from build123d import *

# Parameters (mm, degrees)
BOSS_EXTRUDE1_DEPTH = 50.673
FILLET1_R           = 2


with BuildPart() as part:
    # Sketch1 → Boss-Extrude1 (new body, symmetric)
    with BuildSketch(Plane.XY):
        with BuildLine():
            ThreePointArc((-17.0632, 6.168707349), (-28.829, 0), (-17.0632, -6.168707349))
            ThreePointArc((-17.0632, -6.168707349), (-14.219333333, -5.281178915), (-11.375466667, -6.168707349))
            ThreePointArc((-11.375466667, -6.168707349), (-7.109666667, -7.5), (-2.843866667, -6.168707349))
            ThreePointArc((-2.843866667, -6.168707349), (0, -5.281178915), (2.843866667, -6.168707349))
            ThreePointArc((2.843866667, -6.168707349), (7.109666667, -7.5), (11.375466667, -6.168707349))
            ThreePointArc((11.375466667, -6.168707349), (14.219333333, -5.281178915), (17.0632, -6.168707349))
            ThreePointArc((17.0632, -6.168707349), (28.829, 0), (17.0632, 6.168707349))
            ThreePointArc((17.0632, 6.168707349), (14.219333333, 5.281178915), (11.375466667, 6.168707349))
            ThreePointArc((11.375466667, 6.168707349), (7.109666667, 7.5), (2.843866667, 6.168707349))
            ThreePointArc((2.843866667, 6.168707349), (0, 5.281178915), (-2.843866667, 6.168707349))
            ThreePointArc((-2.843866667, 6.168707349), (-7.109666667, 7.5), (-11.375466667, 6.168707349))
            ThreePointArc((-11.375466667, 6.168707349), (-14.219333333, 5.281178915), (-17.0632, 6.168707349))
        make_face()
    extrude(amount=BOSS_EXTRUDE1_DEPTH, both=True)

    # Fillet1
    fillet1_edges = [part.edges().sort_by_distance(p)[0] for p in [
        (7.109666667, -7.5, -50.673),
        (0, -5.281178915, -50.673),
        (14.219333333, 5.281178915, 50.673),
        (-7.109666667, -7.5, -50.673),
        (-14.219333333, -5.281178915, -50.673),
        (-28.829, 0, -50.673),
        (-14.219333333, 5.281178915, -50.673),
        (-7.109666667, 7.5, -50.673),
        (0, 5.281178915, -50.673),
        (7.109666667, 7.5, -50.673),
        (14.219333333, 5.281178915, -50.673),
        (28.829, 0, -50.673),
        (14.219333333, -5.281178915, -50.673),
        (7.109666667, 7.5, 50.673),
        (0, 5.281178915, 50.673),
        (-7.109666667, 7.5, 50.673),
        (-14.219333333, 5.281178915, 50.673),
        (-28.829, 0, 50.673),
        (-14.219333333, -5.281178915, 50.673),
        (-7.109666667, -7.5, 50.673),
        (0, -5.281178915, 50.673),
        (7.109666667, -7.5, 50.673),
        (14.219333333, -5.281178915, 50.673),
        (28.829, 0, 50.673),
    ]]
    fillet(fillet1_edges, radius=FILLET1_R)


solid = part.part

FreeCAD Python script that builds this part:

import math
import FreeCAD as App
import Part
import Sketcher
Q = App.Units.Quantity


def edges_at(feature, points):
    """Names of the edges that pass closest to the given points."""
    edges = feature.Shape.Edges
    near = lambda p: min(range(len(edges)), key=lambda i: edges[i].distToShape(Part.Vertex(*p))[0])
    return sorted({f"Edge{near(p) + 1}" for p in points})

doc = App.newDocument("Part")
body = doc.addObject("PartDesign::Body", "Body")

# Sketch on XY plane
sketch1 = body.newObject("Sketcher::SketchObject", "Sketch")
sketch1.AttachmentSupport = (doc.getObject("XY_Plane"), [""])
sketch1.MapMode = "FlatFace"
sketch1.addGeometry(Part.ArcOfCircle(Part.Circle(App.Vector(-21.3, 0, 0), App.Vector(0, 0, 1), 7.5), math.radians(55), math.radians(305)), False)
sketch1.addGeometry(Part.ArcOfCircle(Part.Circle(App.Vector(-14.2, -10.3, 0), App.Vector(0, 0, 1), 5), math.radians(55), math.radians(125)), False)
sketch1.addGeometry(Part.ArcOfCircle(Part.Circle(App.Vector(-7.1, 0, 0), App.Vector(0, 0, 1), 7.5), math.radians(-125), math.radians(-55)), False)
sketch1.addGeometry(Part.ArcOfCircle(Part.Circle(App.Vector(0, -10.3, 0), App.Vector(0, 0, 1), 5), math.radians(55), math.radians(125)), False)
sketch1.addGeometry(Part.ArcOfCircle(Part.Circle(App.Vector(7.1, 0, 0), App.Vector(0, 0, 1), 7.5), math.radians(-125), math.radians(-55)), False)
sketch1.addGeometry(Part.ArcOfCircle(Part.Circle(App.Vector(14.2, -10.3, 0), App.Vector(0, 0, 1), 5), math.radians(55), math.radians(125)), False)
sketch1.addGeometry(Part.ArcOfCircle(Part.Circle(App.Vector(21.3, 0, 0), App.Vector(0, 0, 1), 7.5), math.radians(-125), math.radians(125)), False)
sketch1.addGeometry(Part.ArcOfCircle(Part.Circle(App.Vector(14.2, 10.3, 0), App.Vector(0, 0, 1), 5), math.radians(-125), math.radians(-55)), False)
sketch1.addGeometry(Part.ArcOfCircle(Part.Circle(App.Vector(7.1, 0, 0), App.Vector(0, 0, 1), 7.5), math.radians(55), math.radians(125)), False)
sketch1.addGeometry(Part.ArcOfCircle(Part.Circle(App.Vector(0, 10.3, 0), App.Vector(0, 0, 1), 5), math.radians(-125), math.radians(-55)), False)
sketch1.addGeometry(Part.ArcOfCircle(Part.Circle(App.Vector(-7.1, 0, 0), App.Vector(0, 0, 1), 7.5), math.radians(55), math.radians(125)), False)
sketch1.addGeometry(Part.ArcOfCircle(Part.Circle(App.Vector(-14.2, 10.3, 0), App.Vector(0, 0, 1), 5), math.radians(-125), math.radians(-55)), False)
sketch1.addConstraint(Sketcher.Constraint("Tangent", 0, 2, 1, 2))
sketch1.addConstraint(Sketcher.Constraint("Tangent", 1, 1, 2, 1))
sketch1.addConstraint(Sketcher.Constraint("Tangent", 2, 2, 3, 2))
sketch1.addConstraint(Sketcher.Constraint("Tangent", 3, 1, 4, 1))
sketch1.addConstraint(Sketcher.Constraint("Tangent", 4, 2, 5, 2))
sketch1.addConstraint(Sketcher.Constraint("Tangent", 5, 1, 6, 1))
sketch1.addConstraint(Sketcher.Constraint("Tangent", 6, 2, 7, 2))
sketch1.addConstraint(Sketcher.Constraint("Tangent", 7, 1, 8, 1))
sketch1.addConstraint(Sketcher.Constraint("Tangent", 8, 2, 9, 2))
sketch1.addConstraint(Sketcher.Constraint("Tangent", 9, 1, 10, 1))
sketch1.addConstraint(Sketcher.Constraint("Tangent", 10, 2, 11, 2))
sketch1.addConstraint(Sketcher.Constraint("Tangent", 11, 1, 0, 1))
sketch1.addConstraint(Sketcher.Constraint("Coincident", 8, 3, 4, 3))
sketch1.addConstraint(Sketcher.Constraint("Coincident", 10, 3, 2, 3))
sketch1.addConstraint(Sketcher.Constraint("Equal", 0, 2))
sketch1.addConstraint(Sketcher.Constraint("Equal", 1, 3))
sketch1.addConstraint(Sketcher.Constraint("Equal", 2, 4))
sketch1.addConstraint(Sketcher.Constraint("Equal", 3, 5))
sketch1.addConstraint(Sketcher.Constraint("Equal", 4, 6))
sketch1.addConstraint(Sketcher.Constraint("Equal", 5, 7))
sketch1.addConstraint(Sketcher.Constraint("Equal", 6, 8))
sketch1.addConstraint(Sketcher.Constraint("Equal", 7, 9))
sketch1.addConstraint(Sketcher.Constraint("Equal", 8, 10))
sketch1.addConstraint(Sketcher.Constraint("Equal", 9, 11))
sketch1.addConstraint(Sketcher.Constraint("Symmetric", 2, 3, 4, 3, -1, 1))
sketch1.addConstraint(Sketcher.Constraint("Symmetric", 0, 3, 6, 3, -1, 1))
sketch1.addConstraint(Sketcher.Constraint("Symmetric", 1, 3, 5, 3, -2))
sketch1.addConstraint(Sketcher.Constraint("Horizontal", 1, 3, 3, 3))
sketch1.addConstraint(Sketcher.Constraint("Radius", 1, Q("5 mm")))
sketch1.addConstraint(Sketcher.Constraint("Radius", 0, Q("7.5 mm")))
sketch1.addConstraint(Sketcher.Constraint("DistanceX", 0, 3, -1, 1, Q("21.329 mm")))
pad1 = body.newObject("PartDesign::Pad", "Pad")
pad1.Profile = sketch1
pad1.Length = 101.346
pad1.Midplane = True
doc.recompute()

fillet = body.newObject("PartDesign::Fillet", "Fillet")
fillet.Base = (pad1, edges_at(pad1, [
    (7.11, -7.5, -50.673),
    (0, -5.281, -50.673),
    (14.219, 5.281, 50.673),
    (-7.11, -7.5, -50.673),
    (-14.219, -5.281, -50.673),
    (-28.829, 0, -50.673),
    (-14.219, 5.281, -50.673),
    (-7.11, 7.5, -50.673),
    (0, 5.281, -50.673),
    (7.11, 7.5, -50.673),
    (14.219, 5.281, -50.673),
    (28.829, 0, -50.673),
    (14.219, -5.281, -50.673),
    (7.11, 7.5, 50.673),
    (0, 5.281, 50.673),
    (-7.11, 7.5, 50.673),
    (-14.219, 5.281, 50.673),
    (-28.829, 0, 50.673),
    (-14.219, -5.281, 50.673),
    (-7.11, -7.5, 50.673),
    (0, -5.281, 50.673),
    (7.11, -7.5, 50.673),
    (14.219, -5.281, 50.673),
    (28.829, 0, 50.673),
]))
fillet.Radius = 2

doc.recompute()
